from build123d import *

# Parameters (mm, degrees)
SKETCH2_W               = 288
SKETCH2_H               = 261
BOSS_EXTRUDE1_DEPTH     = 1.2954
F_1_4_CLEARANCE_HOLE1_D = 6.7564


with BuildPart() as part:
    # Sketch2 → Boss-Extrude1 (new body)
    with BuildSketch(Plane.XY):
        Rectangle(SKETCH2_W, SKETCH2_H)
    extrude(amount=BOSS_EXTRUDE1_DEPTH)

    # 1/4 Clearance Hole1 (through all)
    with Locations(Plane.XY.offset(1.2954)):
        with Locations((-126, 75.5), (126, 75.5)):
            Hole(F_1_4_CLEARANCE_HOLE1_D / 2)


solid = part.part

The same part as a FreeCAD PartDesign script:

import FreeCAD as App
import Part
import Sketcher
Q = App.Units.Quantity


def add_polygon(sketch, points):
    """Adds a closed chain of lines whose ends are joined by coincident constraints."""
    first, n = sketch.GeometryCount, len(points)
    for a, b in zip(points, points[1:] + points[:1]):
        sketch.addGeometry(Part.LineSegment(App.Vector(*a, 0), App.Vector(*b, 0)), False)
    for i in range(n):
        sketch.addConstraint(Sketcher.Constraint("Coincident", first + i, 2, first + (i + 1) % n, 1))

doc = App.newDocument("Part")
body = doc.addObject("PartDesign::Body", "Body")

sketch1 = doc.addObject("Sketcher::SketchObject", "Sketch")
body.addObject(sketch1)
sketch1.AttachmentSupport = (doc.XY_Plane, [""])
sketch1.MapMode = "FlatFace"
add_polygon(sketch1, [(-144, 130), (-144, -130), (144, -130), (144, 130)])
sketch1.addConstraint([
    Sketcher.Constraint("Vertical", 0),
    Sketcher.Constraint("Horizontal", 1),
    Sketcher.Constraint("Vertical", 2),
    Sketcher.Constraint("Horizontal", 3),
    Sketcher.Constraint("Symmetric", 0, 2, 2, 2, -1, 1),
    Sketcher.Constraint("DistanceX", 1, 1, 1, 2, Q("288 mm")),
    Sketcher.Constraint("DistanceY", 0, 2, 0, 1, Q("261 mm")),
])
pad1 = doc.addObject("PartDesign::Pad", "Pad")
body.addObject(pad1)
pad1.Profile = sketch1
pad1.Length = 1.2954

sketch2 = doc.addObject("Sketcher::SketchObject", "Sketch001")
body.addObject(sketch2)
sketch2.AttachmentSupport = (doc.XY_Plane, [""])
sketch2.MapMode = "FlatFace"
sketch2.AttachmentOffset = App.Placement(App.Vector(0, 0, 1.2954), App.Rotation())
sketch2.addGeometry([
    Part.Circle(App.Vector(-126, 75.5, 0), App.Vector(0, 0, 1), 3.4),
    Part.Circle(App.Vector(126, 75.5, 0), App.Vector(0, 0, 1), 3.4),
], False)
sketch2.addConstraint([
    Sketcher.Constraint("Equal", 0, 1),
    Sketcher.Constraint("Symmetric", 0, 3, 1, 3, -2),
    Sketcher.Constraint("DistanceX", 0, 3, -1, 1, Q("126 mm")),
    Sketcher.Constraint("Diameter", 0, Q("6.7564 mm")),
    Sketcher.Constraint("DistanceY", -1, 1, 0, 3, Q("75.5 mm")),
])
doc.recompute()
hole = doc.addObject("PartDesign::Hole", "Hole")
body.addObject(hole)
hole.Profile = sketch2
hole.ThreadType = "None"
hole.Diameter = 6.7564
hole.DepthType = "ThroughAll"

doc.recompute()
